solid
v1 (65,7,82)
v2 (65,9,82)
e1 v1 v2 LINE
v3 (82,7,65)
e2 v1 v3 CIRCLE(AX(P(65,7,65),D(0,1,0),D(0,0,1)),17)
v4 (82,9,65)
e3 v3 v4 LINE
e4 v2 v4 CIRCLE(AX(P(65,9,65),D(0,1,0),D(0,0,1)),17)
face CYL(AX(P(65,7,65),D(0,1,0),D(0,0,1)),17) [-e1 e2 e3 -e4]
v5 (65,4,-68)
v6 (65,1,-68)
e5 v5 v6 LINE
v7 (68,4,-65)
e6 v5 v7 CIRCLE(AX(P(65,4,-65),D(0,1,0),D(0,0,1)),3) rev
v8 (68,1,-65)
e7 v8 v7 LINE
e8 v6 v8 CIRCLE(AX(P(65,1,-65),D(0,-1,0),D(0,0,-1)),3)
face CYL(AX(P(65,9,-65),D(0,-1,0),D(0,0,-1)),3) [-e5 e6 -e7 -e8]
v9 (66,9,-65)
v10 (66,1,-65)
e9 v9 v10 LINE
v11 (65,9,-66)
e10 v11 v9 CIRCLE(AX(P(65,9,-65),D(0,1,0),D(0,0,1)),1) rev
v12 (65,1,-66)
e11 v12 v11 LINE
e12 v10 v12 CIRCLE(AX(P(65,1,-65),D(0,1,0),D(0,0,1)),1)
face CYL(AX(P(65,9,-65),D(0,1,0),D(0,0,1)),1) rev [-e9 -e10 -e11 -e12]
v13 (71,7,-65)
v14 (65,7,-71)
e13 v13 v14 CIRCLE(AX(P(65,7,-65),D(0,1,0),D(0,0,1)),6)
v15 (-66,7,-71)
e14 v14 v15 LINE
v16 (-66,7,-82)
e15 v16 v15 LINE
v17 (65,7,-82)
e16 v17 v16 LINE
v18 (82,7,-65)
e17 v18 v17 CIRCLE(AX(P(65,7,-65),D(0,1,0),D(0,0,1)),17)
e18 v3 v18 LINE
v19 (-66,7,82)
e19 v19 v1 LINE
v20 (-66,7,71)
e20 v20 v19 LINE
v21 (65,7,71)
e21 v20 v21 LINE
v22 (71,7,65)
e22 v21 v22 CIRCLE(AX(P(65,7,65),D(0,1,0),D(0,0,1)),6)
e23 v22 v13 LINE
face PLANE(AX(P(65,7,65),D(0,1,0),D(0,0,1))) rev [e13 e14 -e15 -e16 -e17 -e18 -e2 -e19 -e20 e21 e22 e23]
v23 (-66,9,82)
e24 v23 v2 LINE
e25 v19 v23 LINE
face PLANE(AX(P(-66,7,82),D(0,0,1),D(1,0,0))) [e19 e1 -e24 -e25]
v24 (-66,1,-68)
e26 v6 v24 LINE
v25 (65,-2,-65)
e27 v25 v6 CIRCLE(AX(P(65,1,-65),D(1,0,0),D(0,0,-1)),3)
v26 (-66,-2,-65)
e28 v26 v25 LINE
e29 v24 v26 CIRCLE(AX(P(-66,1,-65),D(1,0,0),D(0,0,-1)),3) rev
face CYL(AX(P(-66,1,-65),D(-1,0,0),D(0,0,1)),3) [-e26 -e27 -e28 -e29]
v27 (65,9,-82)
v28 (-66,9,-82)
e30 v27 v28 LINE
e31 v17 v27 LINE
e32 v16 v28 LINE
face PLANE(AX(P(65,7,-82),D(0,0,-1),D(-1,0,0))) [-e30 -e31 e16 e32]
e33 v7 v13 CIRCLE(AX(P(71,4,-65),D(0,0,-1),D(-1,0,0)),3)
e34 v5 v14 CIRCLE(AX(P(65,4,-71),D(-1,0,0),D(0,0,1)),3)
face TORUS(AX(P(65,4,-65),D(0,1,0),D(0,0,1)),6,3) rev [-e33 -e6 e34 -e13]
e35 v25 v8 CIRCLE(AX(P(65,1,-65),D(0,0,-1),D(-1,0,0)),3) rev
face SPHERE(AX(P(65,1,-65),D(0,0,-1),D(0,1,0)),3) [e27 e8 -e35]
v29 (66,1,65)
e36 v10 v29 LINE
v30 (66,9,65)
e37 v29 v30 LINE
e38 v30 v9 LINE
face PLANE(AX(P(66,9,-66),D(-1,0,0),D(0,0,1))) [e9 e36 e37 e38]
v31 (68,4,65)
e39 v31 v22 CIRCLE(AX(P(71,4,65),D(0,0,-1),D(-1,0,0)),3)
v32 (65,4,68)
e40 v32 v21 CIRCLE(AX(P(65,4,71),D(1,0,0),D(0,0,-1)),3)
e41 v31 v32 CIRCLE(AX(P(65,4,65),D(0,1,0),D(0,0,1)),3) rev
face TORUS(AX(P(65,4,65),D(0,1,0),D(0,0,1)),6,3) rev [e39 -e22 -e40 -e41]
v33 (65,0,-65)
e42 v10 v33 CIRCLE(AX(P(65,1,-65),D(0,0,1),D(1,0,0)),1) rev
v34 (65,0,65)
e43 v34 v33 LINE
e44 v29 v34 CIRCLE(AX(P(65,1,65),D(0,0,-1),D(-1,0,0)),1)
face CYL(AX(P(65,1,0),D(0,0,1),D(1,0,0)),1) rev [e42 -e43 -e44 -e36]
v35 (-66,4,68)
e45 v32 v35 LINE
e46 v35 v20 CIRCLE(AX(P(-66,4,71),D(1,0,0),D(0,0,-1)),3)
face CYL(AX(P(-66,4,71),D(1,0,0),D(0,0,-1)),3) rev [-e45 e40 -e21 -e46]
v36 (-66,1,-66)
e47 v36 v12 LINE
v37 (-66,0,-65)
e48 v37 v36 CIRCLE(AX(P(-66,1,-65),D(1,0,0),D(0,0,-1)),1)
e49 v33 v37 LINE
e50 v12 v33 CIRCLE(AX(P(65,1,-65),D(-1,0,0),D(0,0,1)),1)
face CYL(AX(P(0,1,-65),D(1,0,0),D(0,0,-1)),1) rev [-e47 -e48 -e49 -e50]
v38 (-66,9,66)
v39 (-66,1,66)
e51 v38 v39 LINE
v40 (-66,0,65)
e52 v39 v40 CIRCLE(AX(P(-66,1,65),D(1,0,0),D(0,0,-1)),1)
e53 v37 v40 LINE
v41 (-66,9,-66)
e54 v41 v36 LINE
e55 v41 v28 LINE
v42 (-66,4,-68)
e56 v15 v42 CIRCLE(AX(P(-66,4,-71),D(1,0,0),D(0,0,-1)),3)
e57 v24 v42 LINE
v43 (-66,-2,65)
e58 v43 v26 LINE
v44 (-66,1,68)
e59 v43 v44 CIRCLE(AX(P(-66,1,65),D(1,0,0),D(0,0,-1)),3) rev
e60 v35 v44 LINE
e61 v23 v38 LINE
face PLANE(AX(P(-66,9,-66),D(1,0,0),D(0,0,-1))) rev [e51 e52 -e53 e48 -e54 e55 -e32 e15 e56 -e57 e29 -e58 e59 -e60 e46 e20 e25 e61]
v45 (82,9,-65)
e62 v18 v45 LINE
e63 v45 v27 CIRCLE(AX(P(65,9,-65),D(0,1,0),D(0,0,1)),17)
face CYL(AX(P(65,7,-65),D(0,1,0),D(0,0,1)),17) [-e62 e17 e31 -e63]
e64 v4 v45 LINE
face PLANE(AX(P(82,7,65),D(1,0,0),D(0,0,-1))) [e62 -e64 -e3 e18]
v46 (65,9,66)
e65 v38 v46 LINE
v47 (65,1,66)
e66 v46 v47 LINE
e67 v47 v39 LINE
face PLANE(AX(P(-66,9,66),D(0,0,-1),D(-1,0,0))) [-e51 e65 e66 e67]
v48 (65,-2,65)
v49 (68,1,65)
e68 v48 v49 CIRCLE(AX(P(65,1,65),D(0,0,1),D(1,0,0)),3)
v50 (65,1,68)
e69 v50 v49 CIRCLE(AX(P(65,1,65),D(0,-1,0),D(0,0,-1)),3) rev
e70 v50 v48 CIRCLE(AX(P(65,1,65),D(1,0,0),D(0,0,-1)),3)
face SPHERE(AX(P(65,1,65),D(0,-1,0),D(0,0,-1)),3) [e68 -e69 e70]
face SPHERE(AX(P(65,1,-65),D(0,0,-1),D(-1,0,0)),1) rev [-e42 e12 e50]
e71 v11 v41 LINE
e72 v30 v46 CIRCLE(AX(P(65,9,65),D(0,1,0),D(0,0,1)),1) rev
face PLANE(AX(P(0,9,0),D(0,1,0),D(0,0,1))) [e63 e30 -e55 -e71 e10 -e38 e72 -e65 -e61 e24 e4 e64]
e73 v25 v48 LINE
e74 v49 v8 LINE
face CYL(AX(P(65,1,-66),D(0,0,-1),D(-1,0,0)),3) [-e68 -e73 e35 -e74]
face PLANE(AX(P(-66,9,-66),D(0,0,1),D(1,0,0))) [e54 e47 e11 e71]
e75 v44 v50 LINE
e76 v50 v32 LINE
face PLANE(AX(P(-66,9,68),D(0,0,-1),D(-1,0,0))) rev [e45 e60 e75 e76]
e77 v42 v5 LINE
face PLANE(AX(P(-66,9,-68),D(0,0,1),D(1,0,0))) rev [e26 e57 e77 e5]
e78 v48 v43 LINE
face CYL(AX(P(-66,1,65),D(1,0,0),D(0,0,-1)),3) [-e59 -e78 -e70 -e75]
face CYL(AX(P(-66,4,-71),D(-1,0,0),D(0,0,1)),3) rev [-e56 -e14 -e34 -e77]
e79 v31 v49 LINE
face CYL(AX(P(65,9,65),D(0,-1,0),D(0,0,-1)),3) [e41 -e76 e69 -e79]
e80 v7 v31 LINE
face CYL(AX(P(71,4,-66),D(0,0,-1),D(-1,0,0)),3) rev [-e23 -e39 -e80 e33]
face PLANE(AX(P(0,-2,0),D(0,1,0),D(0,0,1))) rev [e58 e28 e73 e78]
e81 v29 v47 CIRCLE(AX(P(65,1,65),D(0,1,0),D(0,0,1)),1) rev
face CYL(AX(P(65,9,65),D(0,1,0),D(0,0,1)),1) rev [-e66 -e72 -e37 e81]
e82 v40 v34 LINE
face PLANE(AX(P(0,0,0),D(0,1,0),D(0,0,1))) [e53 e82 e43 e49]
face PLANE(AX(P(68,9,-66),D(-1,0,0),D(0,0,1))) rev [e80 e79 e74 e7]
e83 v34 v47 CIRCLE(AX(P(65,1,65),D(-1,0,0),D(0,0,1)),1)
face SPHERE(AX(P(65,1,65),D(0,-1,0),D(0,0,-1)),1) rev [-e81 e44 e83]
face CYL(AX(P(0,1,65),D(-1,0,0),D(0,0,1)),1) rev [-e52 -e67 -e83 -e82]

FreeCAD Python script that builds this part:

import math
import FreeCAD as App
import Part
import Sketcher


def edges_at(feature, points):
    """Names of the edges that pass closest to the given points."""
    edges = feature.Shape.Edges
    near = lambda p: min(range(len(edges)), key=lambda i: edges[i].distToShape(Part.Vertex(*p))[0])
    return sorted({f"Edge{near(p) + 1}" for p in points})


def faces_at(feature, points):
    """Names of the faces that lie closest to the given points."""
    faces = feature.Shape.Faces
    near = lambda p: min(range(len(faces)), key=lambda i: faces[i].distToShape(Part.Vertex(*p))[0])
    return sorted({f"Face{near(p) + 1}" for p in points})

doc = App.newDocument("Part")
body = doc.addObject("PartDesign::Body", "Body")

# Sketch on XZ plane
sketch1 = doc.addObject("Sketcher::SketchObject", "Sketch")
body.addObject(sketch1)
sketch1.AttachmentSupport = (doc.XZ_Plane, [""])
sketch1.MapMode = "FlatFace"
sketch1.addGeometry(Part.LineSegment(App.Vector(-66, -66, 0), App.Vector(-66, 66, 0)), False)
sketch1.addGeometry(Part.LineSegment(App.Vector(-66, 66, 0), App.Vector(66, 66, 0)), False)
sketch1.addGeometry(Part.LineSegment(App.Vector(66, 66, 0), App.Vector(66, -66, 0)), False)
sketch1.addGeometry(Part.LineSegment(App.Vector(66, -66, 0), App.Vector(-66, -66, 0)), False)
sketch1.addConstraint(Sketcher.Constraint("Coincident", 0, 2, 1, 1))
sketch1.addConstraint(Sketcher.Constraint("Coincident", 1, 2, 2, 1))
sketch1.addConstraint(Sketcher.Constraint("Coincident", 2, 2, 3, 1))
sketch1.addConstraint(Sketcher.Constraint("Coincident", 3, 2, 0, 1))
sketch1.addConstraint(Sketcher.Constraint("Vertical", 0))
sketch1.addConstraint(Sketcher.Constraint("Horizontal", 1))
sketch1.addConstraint(Sketcher.Constraint("Vertical", 2))
sketch1.addConstraint(Sketcher.Constraint("Horizontal", 3))
sketch1.addConstraint(Sketcher.Constraint("Symmetric", 0, 2, 2, 2, -1, 1))
sketch1.addConstraint(Sketcher.Constraint("Equal", 3, 0))
sketch1.addConstraint(Sketcher.Constraint("DistanceX", 1, 1, 1, 2, 132.0))
pad1 = doc.addObject("PartDesign::Pad", "Pad")
body.addObject(pad1)
pad1.Profile = sketch1
pad1.Length = 9
pad1.Reversed = True
doc.recompute()

thickness = doc.addObject("PartDesign::Thickness", "Thickness")
body.addObject(thickness)
thickness.Base = (pad1, faces_at(pad1, [(0, 9, 0)]))
thickness.Value = 2
thickness.Reversed = False
thickness.Join = "Intersection"

# Sketch on YZ plane
sketch2 = doc.addObject("Sketcher::SketchObject", "Sketch001")
body.addObject(sketch2)
sketch2.AttachmentSupport = (doc.YZ_Plane, [""])
sketch2.MapMode = "FlatFace"
sketch2.AttachmentOffset = App.Placement(App.Vector(0, 0, -68), App.Rotation())
sketch2.addGeometry(Part.LineSegment(App.Vector(19, -88, 0), App.Vector(-19, -88, 0)), False)
sketch2.addGeometry(Part.LineSegment(App.Vector(-19, -88, 0), App.Vector(-19, 88, 0)), False)
sketch2.addGeometry(Part.LineSegment(App.Vector(-19, 88, 0), App.Vector(19, 88, 0)), False)
sketch2.addGeometry(Part.LineSegment(App.Vector(19, 88, 0), App.Vector(19, -88, 0)), False)
sketch2.addConstraint(Sketcher.Constraint("Coincident", 0, 2, 1, 1))
sketch2.addConstraint(Sketcher.Constraint("Coincident", 1, 2, 2, 1))
sketch2.addConstraint(Sketcher.Constraint("Coincident", 2, 2, 3, 1))
sketch2.addConstraint(Sketcher.Constraint("Coincident", 3, 2, 0, 1))
sketch2.addConstraint(Sketcher.Constraint("Horizontal", 0))
sketch2.addConstraint(Sketcher.Constraint("Vertical", 1))
sketch2.addConstraint(Sketcher.Constraint("Horizontal", 2))
sketch2.addConstraint(Sketcher.Constraint("Vertical", 3))
sketch2.addConstraint(Sketcher.Constraint("Symmetric", 0, 2, 2, 2, -1, 1))
sketch2.addConstraint(Sketcher.Constraint("DistanceX", 0, 2, 0, 1, 38.948556))
sketch2.addConstraint(Sketcher.Constraint("DistanceY", 1, 1, 1, 2, 175.701612))
pocket1 = doc.addObject("PartDesign::Pocket", "Pocket")
body.addObject(pocket1)
pocket1.Profile = sketch2
pocket1.Length = 2
pocket1.Reversed = True
doc.recompute()

fillet = doc.addObject("PartDesign::Fillet", "Fillet")
body.addObject(fillet)
fillet.Base = (pocket1, edges_at(pocket1, [
    (0, 0, 66),
    (66, 0, 0),
    (66, 4.5, 66),
    (0, 0, -66),
    (66, 4.5, -66),
]))
fillet.Radius = 1
doc.recompute()

fillet2 = doc.addObject("PartDesign::Fillet", "Fillet001")
body.addObject(fillet2)
fillet2.Base = (fillet, edges_at(fillet, [
    (1, -2, 68),
    (1, -2, -68),
    (68, -2, 0),
    (68, 3.5, -68),
    (68, 3.5, 68),
]))
fillet2.Radius = 3

# Sketch on XZ plane
sketch3 = doc.addObject("Sketcher::SketchObject", "Sketch002")
body.addObject(sketch3)
sketch3.AttachmentSupport = (doc.XZ_Plane, [""])
sketch3.MapMode = "FlatFace"
sketch3.AttachmentOffset = App.Placement(App.Vector(0, 0, -7), App.Rotation())
sketch3.addGeometry(Part.LineSegment(App.Vector(-66, -82, 0), App.Vector(-66, -68, 0)), False)
sketch3.addGeometry(Part.LineSegment(App.Vector(-66, -68, 0), App.Vector(65, -68, 0)), False)
sketch3.addGeometry(Part.ArcOfCircle(Part.Circle(App.Vector(65, -65, 0), App.Vector(0, 0, 1), 3), math.radians(-90), math.radians(0)), False)
sketch3.addGeometry(Part.LineSegment(App.Vector(68, -65, 0), App.Vector(68, 65, 0)), False)
sketch3.addGeometry(Part.ArcOfCircle(Part.Circle(App.Vector(65, 65, 0), App.Vector(0, 0, 1), 3), math.radians(0), math.radians(90)), False)
sketch3.addGeometry(Part.LineSegment(App.Vector(65, 68, 0), App.Vector(-66, 68, 0)), False)
sketch3.addGeometry(Part.LineSegment(App.Vector(-66, 68, 0), App.Vector(-66, 82, 0)), False)
sketch3.addGeometry(Part.LineSegment(App.Vector(-66, 82, 0), App.Vector(65, 82, 0)), False)
sketch3.addGeometry(Part.ArcOfCircle(Part.Circle(App.Vector(65, 65, 0), App.Vector(0, 0, 1), 17), math.radians(0), math.radians(90)), False)
sketch3.addGeometry(Part.LineSegment(App.Vector(82, 65, 0), App.Vector(82, -65, 0)), False)
sketch3.addGeometry(Part.ArcOfCircle(Part.Circle(App.Vector(65, -65, 0), App.Vector(0, 0, 1), 17), math.radians(-90), math.radians(0)), False)
sketch3.addGeometry(Part.LineSegment(App.Vector(65, -82, 0), App.Vector(-66, -82, 0)), False)
sketch3.addConstraint(Sketcher.Constraint("Coincident", 0, 2, 1, 1))
sketch3.addConstraint(Sketcher.Constraint("Tangent", 1, 2, 2, 1))
sketch3.addConstraint(Sketcher.Constraint("Tangent", 2, 2, 3, 1))
sketch3.addConstraint(Sketcher.Constraint("Tangent", 3, 2, 4, 1))
sketch3.addConstraint(Sketcher.Constraint("Tangent", 4, 2, 5, 1))
sketch3.addConstraint(Sketcher.Constraint("Coincident", 5, 2, 6, 1))
sketch3.addConstraint(Sketcher.Constraint("Coincident", 6, 2, 7, 1))
sketch3.addConstraint(Sketcher.Constraint("Tangent", 7, 2, 8, 2))
sketch3.addConstraint(Sketcher.Constraint("Tangent", 8, 1, 9, 1))
sketch3.addConstraint(Sketcher.Constraint("Tangent", 9, 2, 10, 2))
sketch3.addConstraint(Sketcher.Constraint("Tangent", 10, 1, 11, 1))
sketch3.addConstraint(Sketcher.Constraint("Coincident", 11, 2, 0, 1))
sketch3.addConstraint(Sketcher.Constraint("Vertical", 0))
sketch3.addConstraint(Sketcher.Constraint("Horizontal", 1))
sketch3.addConstraint(Sketcher.Constraint("Vertical", 3))
sketch3.addConstraint(Sketcher.Constraint("Horizontal", 5))
sketch3.addConstraint(Sketcher.Constraint("Vertical", 6))
sketch3.addConstraint(Sketcher.Constraint("Horizontal", 7))
sketch3.addConstraint(Sketcher.Constraint("Vertical", 9))
sketch3.addConstraint(Sketcher.Constraint("Horizontal", 11))
sketch3.addConstraint(Sketcher.Constraint("Coincident", 8, 3, 4, 3))
sketch3.addConstraint(Sketcher.Constraint("Coincident", 10, 3, 2, 3))
sketch3.addConstraint(Sketcher.Constraint("Equal", 2, 4))
sketch3.addConstraint(Sketcher.Constraint("Symmetric", 0, 2, 5, 2, -1))
sketch3.addConstraint(Sketcher.Constraint("Radius", 2, 3.0))
sketch3.addConstraint(Sketcher.Constraint("Radius", 8, 17.0))
sketch3.addConstraint(Sketcher.Constraint("DistanceX", 1, 1, 1, 2, 131.0))
sketch3.addConstraint(Sketcher.Constraint("DistanceY", 3, 1, 3, 2, 130.0))
sketch3.addConstraint(Sketcher.Constraint("DistanceX", -1, 1, 2, 3, 65.0))
pad2 = doc.addObject("PartDesign::Pad", "Pad001")
body.addObject(pad2)
pad2.Profile = sketch3
pad2.Length = 2
pad2.Reversed = True
doc.recompute()

fillet3 = doc.addObject("PartDesign::Fillet", "Fillet002")
body.addObject(fillet3)
fillet3.Base = (pad2, edges_at(pad2, [
    (-0.5, 7, 68),
    (67.121, 7, 67.121),
    (68, 7, 0),
    (67.121, 7, -67.121),
    (-0.5, 7, -68),
]))
fillet3.Radius = 3

doc.recompute()
